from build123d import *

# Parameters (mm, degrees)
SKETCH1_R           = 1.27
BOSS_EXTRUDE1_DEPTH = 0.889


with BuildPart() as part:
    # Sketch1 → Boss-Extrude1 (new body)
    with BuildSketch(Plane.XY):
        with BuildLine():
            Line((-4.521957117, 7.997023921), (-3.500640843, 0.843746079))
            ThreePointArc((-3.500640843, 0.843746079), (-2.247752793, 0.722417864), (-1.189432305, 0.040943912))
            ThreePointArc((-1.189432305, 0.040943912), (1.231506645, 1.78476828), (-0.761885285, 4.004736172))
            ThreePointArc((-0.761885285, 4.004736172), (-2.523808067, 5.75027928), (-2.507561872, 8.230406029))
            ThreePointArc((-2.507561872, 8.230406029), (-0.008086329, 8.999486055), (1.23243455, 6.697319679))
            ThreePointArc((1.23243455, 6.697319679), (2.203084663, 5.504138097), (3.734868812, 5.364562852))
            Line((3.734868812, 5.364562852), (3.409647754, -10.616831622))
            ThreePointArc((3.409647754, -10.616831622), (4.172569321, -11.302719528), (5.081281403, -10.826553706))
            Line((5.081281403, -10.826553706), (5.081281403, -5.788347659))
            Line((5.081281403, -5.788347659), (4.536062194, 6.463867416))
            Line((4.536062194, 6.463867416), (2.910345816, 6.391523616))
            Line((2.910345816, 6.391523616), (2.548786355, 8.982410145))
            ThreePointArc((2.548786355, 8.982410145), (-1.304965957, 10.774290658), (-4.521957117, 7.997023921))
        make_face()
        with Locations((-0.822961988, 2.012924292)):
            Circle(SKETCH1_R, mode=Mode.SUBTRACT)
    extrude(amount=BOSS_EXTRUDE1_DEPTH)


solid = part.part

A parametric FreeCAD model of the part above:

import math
import FreeCAD as App
import Part
import Sketcher
from FreeCAD import Vector
Q = App.Units.Quantity

doc = App.newDocument("Part")
body = doc.addObject("PartDesign::Body", "Body")

sketch1 = body.newObject("Sketcher::SketchObject", "Sketch")
sketch1.AttachmentSupport = (doc.getObject("XY_Plane"), [""])
sketch1.MapMode = "FlatFace"
sketch1.addGeometry([
    Part.LineSegment(Vector(-4.521957, 7.997024, 0), Vector(-3.500641, 0.843746, 0)),
    Part.ArcOfCircle(Part.Circle(Vector(-3.124502, -1.801679, 0), Vector(0, 0, 1), 2.672032), math.radians(43.598149), math.radians(98.092338)),
    Part.ArcOfCircle(Part.Circle(Vector(-0.761885, 1.999782, 0), Vector(0, 0, 1), 2.004954), math.radians(-102.312601), math.radians(90)),
    Part.ArcOfCircle(Part.Circle(Vector(0.431222, 6.971039, 0), Vector(0, 0, 1), 3.197258), math.radians(156.803247), math.radians(248.089006)),
    Part.ArcOfCircle(Part.Circle(Vector(-0.789552, 7.093084, 0), Vector(0, 0, 1), 2.060354), math.radians(-11.074507), math.radians(146.495438)),
    Part.ArcOfCircle(Part.Circle(Vector(3.13473, 7.253431, 0), Vector(0, 0, 1), 1.981915), math.radians(-163.704413), math.radians(-72.373701)),
    Part.LineSegment(Vector(3.734869, 5.364563, 0), Vector(3.409648, -10.616832, 0)),
    Part.ArcOfCircle(Part.Circle(Vector(4.284439, -10.411038, 0), Vector(0, 0, 1), 0.898672), math.radians(-166.761933), math.radians(-27.539925)),
    Part.LineSegment(Vector(5.081281, -10.826554, 0), Vector(5.081281, -5.788348, 0)),
    Part.LineSegment(Vector(5.081281, -5.788348, 0), Vector(4.536062, 6.463867, 0)),
    Part.LineSegment(Vector(4.536062, 6.463867, 0), Vector(2.910346, 6.391524, 0)),
    Part.LineSegment(Vector(2.910346, 6.391524, 0), Vector(2.548786, 8.98241, 0)),
    Part.ArcOfCircle(Part.Circle(Vector(-0.764555, 6.896515, 0), Vector(0, 0, 1), 3.915251), math.radians(32.192238), math.radians(163.675166)),
    Part.Circle(Vector(-0.822962, 2.012924, 0), Vector(0, 0, 1), 1.27),
], False)
sketch1.addConstraint([
    Sketcher.Constraint("Coincident", 0, 2, 1, 2),
    Sketcher.Constraint("Coincident", 1, 1, 2, 1),
    Sketcher.Constraint("Coincident", 2, 2, 3, 2),
    Sketcher.Constraint("Coincident", 3, 1, 4, 2),
    Sketcher.Constraint("Coincident", 4, 1, 5, 1),
    Sketcher.Constraint("Coincident", 5, 2, 6, 1),
    Sketcher.Constraint("Coincident", 6, 2, 7, 1),
    Sketcher.Constraint("Coincident", 7, 2, 8, 1),
    Sketcher.Constraint("Coincident", 8, 2, 9, 1),
    Sketcher.Constraint("Coincident", 9, 2, 10, 1),
    Sketcher.Constraint("Coincident", 10, 2, 11, 1),
    Sketcher.Constraint("Coincident", 11, 2, 12, 1),
    Sketcher.Constraint("Coincident", 12, 2, 0, 1),
    Sketcher.Constraint("Vertical", 8),
    Sketcher.Constraint("Diameter", 13, Q("0.1 in")),
    Sketcher.Constraint("Radius", 1, Q("2.672032 mm")),
    Sketcher.Constraint("Radius", 7, Q("0.898672 mm")),
    Sketcher.Constraint("Radius", 12, Q("3.915251 mm")),
    Sketcher.Constraint("DistanceX", 13, 3, -1, 1, Q("0.0324001 in")),
    Sketcher.Constraint("Radius", 2, Q("2.004954 mm")),
    Sketcher.Constraint("Radius", 3, Q("3.197258 mm")),
    Sketcher.Constraint("Radius", 4, Q("2.060354 mm")),
    Sketcher.Constraint("Radius", 5, Q("1.981915 mm")),
    Sketcher.Constraint("DistanceX", 3, 1, 3, 3, Q("0.1157001 in")),
    Sketcher.Constraint("DistanceY", 2, 3, 4, 3, Q("5.093302 mm")),
    Sketcher.Constraint("Distance", 0, Q("7.22582 mm")),
    Sketcher.Constraint("Distance", 9, Q("12.26434 mm")),
    Sketcher.Constraint("DistanceY", 8, 1, 8, 2, Q("5.038206 mm")),
    Sketcher.Constraint("DistanceY", 1, 3, -1, 1, Q("1.801679 mm")),
    Sketcher.Constraint("DistanceY", -1, 1, 2, 3, Q("1.999782 mm")),
    Sketcher.Constraint("DistanceX", -1, 1, 3, 3, Q("0.431222 mm")),
    Sketcher.Constraint("DistanceY", -1, 1, 3, 3, Q("6.971039 mm")),
    Sketcher.Constraint("DistanceX", -1, 1, 5, 3, Q("3.13473 mm")),
    Sketcher.Constraint("DistanceY", -1, 1, 5, 3, Q("7.253431 mm")),
    Sketcher.Constraint("DistanceX", -1, 1, 7, 3, Q("4.284439 mm")),
    Sketcher.Constraint("DistanceX", 0, 2, -1, 1, Q("3.500641 mm")),
    Sketcher.Constraint("DistanceX", -1, 1, 5, 2, Q("3.734869 mm")),
    Sketcher.Constraint("DistanceY", 6, 2, -1, 1, Q("10.616832 mm")),
    Sketcher.Constraint("DistanceX", -1, 1, 7, 2, Q("5.081281 mm")),
    Sketcher.Constraint("DistanceY", -1, 1, 11, 2, Q("8.98241 mm")),
    Sketcher.Constraint("DistanceX", 1, 3, 4, 3, Q("2.33495 mm")),
    Sketcher.Constraint("DistanceY", 7, 3, 1, 3, Q("8.609359 mm")),
    Sketcher.Constraint("DistanceY", 12, 3, 4, 3, Q("0.196569 mm")),
    Sketcher.Constraint("DistanceX", 12, 3, 2, 3, Q("0.00267 mm")),
    Sketcher.Constraint("DistanceY", 13, 3, 12, 3, Q("4.88359 mm")),
    Sketcher.Constraint("DistanceX", 1, 1, 13, 3, Q("0.36647 mm")),
    Sketcher.Constraint("DistanceX", 5, 3, 9, 2, Q("1.401332 mm")),
    Sketcher.Constraint("DistanceY", 5, 2, 10, 2, Q("1.026961 mm")),
    Sketcher.Constraint("DistanceX", 4, 1, 10, 2, Q("1.677911 mm")),
])
pad1 = body.newObject("PartDesign::Pad", "Pad")
pad1.Profile = sketch1
pad1.Length = Q("0.035 in")

doc.recompute()
